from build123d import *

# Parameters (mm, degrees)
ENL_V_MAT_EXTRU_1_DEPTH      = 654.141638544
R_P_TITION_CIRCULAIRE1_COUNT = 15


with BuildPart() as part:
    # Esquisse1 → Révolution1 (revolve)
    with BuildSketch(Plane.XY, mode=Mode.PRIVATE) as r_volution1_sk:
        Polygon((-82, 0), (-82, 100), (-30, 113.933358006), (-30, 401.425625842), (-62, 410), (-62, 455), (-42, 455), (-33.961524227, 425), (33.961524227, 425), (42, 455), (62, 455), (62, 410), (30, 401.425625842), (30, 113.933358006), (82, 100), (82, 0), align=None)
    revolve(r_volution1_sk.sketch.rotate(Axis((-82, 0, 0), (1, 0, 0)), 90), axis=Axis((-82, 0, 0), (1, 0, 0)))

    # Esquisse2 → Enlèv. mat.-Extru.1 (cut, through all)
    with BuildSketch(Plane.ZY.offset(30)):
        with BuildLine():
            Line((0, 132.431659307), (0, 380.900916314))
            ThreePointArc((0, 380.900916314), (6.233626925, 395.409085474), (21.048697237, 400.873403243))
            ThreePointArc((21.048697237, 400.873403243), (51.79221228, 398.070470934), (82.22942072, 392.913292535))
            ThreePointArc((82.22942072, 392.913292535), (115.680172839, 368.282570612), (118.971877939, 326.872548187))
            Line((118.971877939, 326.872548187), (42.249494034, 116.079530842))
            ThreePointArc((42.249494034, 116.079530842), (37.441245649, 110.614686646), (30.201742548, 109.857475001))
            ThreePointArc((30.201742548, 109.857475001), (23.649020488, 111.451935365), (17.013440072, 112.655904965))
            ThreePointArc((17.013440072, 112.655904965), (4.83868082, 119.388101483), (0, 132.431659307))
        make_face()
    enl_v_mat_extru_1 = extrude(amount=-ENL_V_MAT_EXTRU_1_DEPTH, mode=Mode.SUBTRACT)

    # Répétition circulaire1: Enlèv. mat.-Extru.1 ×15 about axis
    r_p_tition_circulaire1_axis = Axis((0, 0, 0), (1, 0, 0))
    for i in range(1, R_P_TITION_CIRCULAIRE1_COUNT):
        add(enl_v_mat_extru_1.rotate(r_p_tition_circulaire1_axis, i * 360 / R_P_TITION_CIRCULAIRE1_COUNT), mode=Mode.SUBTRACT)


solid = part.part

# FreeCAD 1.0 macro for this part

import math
import FreeCAD as App
import Part
import Sketcher
from FreeCAD import Vector
Q = App.Units.Quantity


def add_polygon(sketch, points):
    """Adds a closed chain of lines whose ends are joined by coincident constraints."""
    first, n = sketch.GeometryCount, len(points)
    for a, b in zip(points, points[1:] + points[:1]):
        sketch.addGeometry(Part.LineSegment(App.Vector(*a, 0), App.Vector(*b, 0)), False)
    for i in range(n):
        sketch.addConstraint(Sketcher.Constraint("Coincident", first + i, 2, first + (i + 1) % n, 1))

doc = App.newDocument("Part")
params = doc.addObject("Spreadsheet::Sheet", "Params")
for row, (alias, value) in enumerate([
    ("sketch1_width", "164 mm"),
    ("sketch1_width2", "20 mm"),
    ("sketch1_height", "100 mm"),
    ("sketch1_height2", "45 mm"),
    ("revolution_angle", "360 deg"),
    ("sketch2_radius", "20 mm"),
    ("sketch2_radius2", "10 mm"),
    ("sketch2_radius3", "50 mm"),
], start=1):
    params.set(f"A{row}", alias)
    params.set(f"B{row}", "=" + value)
    params.setAlias(f"B{row}", alias)

body = doc.addObject("PartDesign::Body", "Body")

# Sketch on XY plane
sketch1 = body.newObject("Sketcher::SketchObject", "Sketch")
sketch1.AttachmentSupport = (doc.getObject("XY_Plane"), [""])
sketch1.MapMode = "FlatFace"
add_polygon(sketch1, [(-82, 100), (-82, 0), (82, 0), (82, 100), (30, 114), (30, 401), (62, 410), (62, 455), (42, 455), (34, 425), (-34, 425), (-42, 455), (-62, 455), (-62, 410), (-30, 401), (-30, 114)])  # lines 0-15
sketch1.addConstraint([
    Sketcher.Constraint("Vertical", 0),
    Sketcher.Constraint("Horizontal", 1),
    Sketcher.Constraint("Vertical", 2),
    Sketcher.Constraint("Vertical", 4),
    Sketcher.Constraint("Vertical", 6),
    Sketcher.Constraint("Horizontal", 7),
    Sketcher.Constraint("Horizontal", 9),
    Sketcher.Constraint("Horizontal", 11),
    Sketcher.Constraint("Vertical", 12),
    Sketcher.Constraint("Vertical", 14),
    Sketcher.Constraint("Symmetric", 0, 2, 1, 2, -1, 1),
    Sketcher.Constraint("Symmetric", 7, 2, 10, 2, -2),
    Sketcher.Constraint("Symmetric", 5, 2, 12, 2, -2),
    Sketcher.Constraint("Symmetric", 4, 2, 13, 2, -2),
    Sketcher.Constraint("Perpendicular", 3, 8),
    Sketcher.Constraint("Perpendicular", 5, 10),
    Sketcher.Constraint("Perpendicular", 8, 13),
    Sketcher.Constraint("Perpendicular", 10, 15),
    Sketcher.Constraint("Horizontal", 3, 2, 14, 2),
    Sketcher.Constraint("DistanceX", 1, 1, 1, 2, Q("164 mm")),
    Sketcher.Constraint("DistanceX", 7, 2, 7, 1, Q("20 mm")),
    Sketcher.Constraint("DistanceY", 0, 2, 0, 1, Q("100 mm")),
    Sketcher.Constraint("DistanceY", 6, 1, 6, 2, Q("45 mm")),
    Sketcher.Constraint("Angle", 3, Q("165 deg")),
    Sketcher.Constraint("DistanceX", -1, 1, 3, 2, Q("30 mm")),
    Sketcher.Constraint("DistanceX", -1, 1, 5, 2, Q("62 mm")),
    Sketcher.Constraint("DistanceY", -1, 1, 5, 2, Q("410 mm")),
    Sketcher.Constraint("DistanceY", -1, 1, 8, 2, Q("425 mm")),
])
sketch1.setExpression("Constraints[35]", "Params.sketch1_width")
sketch1.setExpression("Constraints[36]", "Params.sketch1_width2")
sketch1.setExpression("Constraints[37]", "Params.sketch1_height")
sketch1.setExpression("Constraints[38]", "Params.sketch1_height2")
revolution = body.newObject("PartDesign::Revolution", "Revolution")
revolution.Profile = sketch1
revolution.ReferenceAxis = (sketch1, ["H_Axis"])
revolution.setExpression("Angle", "Params.revolution_angle")

# Sketch on YZ plane
sketch2 = body.newObject("Sketcher::SketchObject", "Sketch001")
sketch2.AttachmentSupport = (doc.getObject("YZ_Plane"), [""])
sketch2.MapMode = "FlatFace"
sketch2.AttachmentOffset = App.Placement(Vector(0, 0, -30), App.Rotation())
sketch2.addGeometry([
    Part.LineSegment(Vector(381, 0, 0), Vector(132, 0, 0)),  # 0
    Part.ArcOfCircle(Part.Circle(Vector(132, 20, 0), Vector(0, 0, 1), 20), math.radians(-171), math.radians(-90)),  # 1
    Part.ArcOfCircle(Part.Circle(Vector(0, 0, 0), Vector(0, 0, 1), 114), math.radians(8.59), math.radians(15.37)),  # 2
    Part.ArcOfCircle(Part.Circle(Vector(119, 33, 0), Vector(0, 0, 1), 10), math.radians(110), math.radians(195)),  # 3
    Part.LineSegment(Vector(116, 42, 0), Vector(327, 119, 0)),  # 4
    Part.ArcOfCircle(Part.Circle(Vector(344, 72, 0), Vector(0, 0, 1), 50), math.radians(12), math.radians(110)),  # 5
    Part.ArcOfCircle(Part.Circle(Vector(0, 0, 0), Vector(0, 0, 1), 401), math.radians(3.01), math.radians(11.82)),  # 6
    Part.ArcOfCircle(Part.Circle(Vector(381, 20, 0), Vector(0, 0, 1), 20), math.radians(-90), math.radians(3)),  # 7
], False)
sketch2.addConstraint([
    Sketcher.Constraint("Tangent", 0, 2, 1, 2),
    Sketcher.Constraint("Tangent", 1, 1, 2, 1),
    Sketcher.Constraint("Tangent", 2, 2, 3, 2),
    Sketcher.Constraint("Tangent", 3, 1, 4, 1),
    Sketcher.Constraint("Tangent", 4, 2, 5, 2),
    Sketcher.Constraint("Tangent", 5, 1, 6, 2),
    Sketcher.Constraint("Tangent", 6, 1, 7, 2),
    Sketcher.Constraint("Tangent", 7, 1, 0, 1),
    Sketcher.Constraint("Horizontal", 0),
    Sketcher.Constraint("Coincident", 2, 3, -1, 1),
    Sketcher.Constraint("Coincident", 6, 3, -1, 1),
    Sketcher.Constraint("Equal", 1, 7),
    Sketcher.Constraint("PointOnObject", 0, 2, -1),
    Sketcher.Constraint("Radius", 1, Q("20 mm")),
    Sketcher.Constraint("Radius", 3, Q("10 mm")),
    Sketcher.Constraint("Radius", 5, Q("50 mm")),
    Sketcher.Constraint("Angle", 4, Q("20 deg")),
    Sketcher.Constraint("Radius", 2, Q("113.933358 mm")),
    Sketcher.Constraint("Radius", 6, Q("401.425626 mm")),
    Sketcher.Constraint("DistanceX", -1, 1, 3, 1, Q("116.079531 mm")),
])
sketch2.setExpression("Constraints[13]", "Params.sketch2_radius")
sketch2.setExpression("Constraints[14]", "Params.sketch2_radius2")
sketch2.setExpression("Constraints[15]", "Params.sketch2_radius3")
pocket1 = body.newObject("PartDesign::Pocket", "Pocket")
pocket1.Profile = sketch2
pocket1.Type = "ThroughAll"
pocket1.Reversed = True
doc.recompute()

polarpattern = body.newObject("PartDesign::PolarPattern", "PolarPattern")
polarpattern.Originals = [pocket1]
polarpattern.Axis = (doc.getObject("X_Axis"), [""])
polarpattern.Angle = 360
polarpattern.Occurrences = 15
body.Tip = polarpattern

doc.recompute()
